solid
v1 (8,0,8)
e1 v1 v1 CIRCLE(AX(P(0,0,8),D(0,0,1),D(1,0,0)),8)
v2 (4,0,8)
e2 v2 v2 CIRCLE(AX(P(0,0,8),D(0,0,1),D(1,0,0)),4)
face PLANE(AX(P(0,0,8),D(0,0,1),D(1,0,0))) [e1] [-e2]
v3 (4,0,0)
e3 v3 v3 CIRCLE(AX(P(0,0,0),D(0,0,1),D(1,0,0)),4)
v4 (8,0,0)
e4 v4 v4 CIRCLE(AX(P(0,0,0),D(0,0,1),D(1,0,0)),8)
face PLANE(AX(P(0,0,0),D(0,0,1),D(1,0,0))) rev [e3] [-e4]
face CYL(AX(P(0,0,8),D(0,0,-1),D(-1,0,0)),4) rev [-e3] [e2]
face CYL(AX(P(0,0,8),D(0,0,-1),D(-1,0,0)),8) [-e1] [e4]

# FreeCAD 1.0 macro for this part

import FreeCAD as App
import Part
import Sketcher

V = App.Vector
Q = App.Units.Quantity

doc = App.newDocument("Part")
body = doc.addObject("PartDesign::Body", "Body")

# Sketch on XY plane
sketch1 = body.newObject("Sketcher::SketchObject", "Sketch")
sketch1.AttachmentSupport = (doc.getObject("XY_Plane"), [""])
sketch1.MapMode = "FlatFace"
sketch1.addGeometry([
    Part.Circle(V(0, 0, 0), V(0, 0, 1), 8),
    Part.Circle(V(0, 0, 0), V(0, 0, 1), 4),
], False)
sketch1.addConstraint([
    Sketcher.Constraint("Coincident", 0, 3, -1, 1),
    Sketcher.Constraint("Coincident", 1, 3, -1, 1),
    Sketcher.Constraint("Diameter", 0, Q("16 mm")),
    Sketcher.Constraint("Diameter", 1, Q("8 mm")),
])
pad1 = body.newObject("PartDesign::Pad", "Pad")
pad1.Profile = sketch1
pad1.Length = 8

doc.recompute()
